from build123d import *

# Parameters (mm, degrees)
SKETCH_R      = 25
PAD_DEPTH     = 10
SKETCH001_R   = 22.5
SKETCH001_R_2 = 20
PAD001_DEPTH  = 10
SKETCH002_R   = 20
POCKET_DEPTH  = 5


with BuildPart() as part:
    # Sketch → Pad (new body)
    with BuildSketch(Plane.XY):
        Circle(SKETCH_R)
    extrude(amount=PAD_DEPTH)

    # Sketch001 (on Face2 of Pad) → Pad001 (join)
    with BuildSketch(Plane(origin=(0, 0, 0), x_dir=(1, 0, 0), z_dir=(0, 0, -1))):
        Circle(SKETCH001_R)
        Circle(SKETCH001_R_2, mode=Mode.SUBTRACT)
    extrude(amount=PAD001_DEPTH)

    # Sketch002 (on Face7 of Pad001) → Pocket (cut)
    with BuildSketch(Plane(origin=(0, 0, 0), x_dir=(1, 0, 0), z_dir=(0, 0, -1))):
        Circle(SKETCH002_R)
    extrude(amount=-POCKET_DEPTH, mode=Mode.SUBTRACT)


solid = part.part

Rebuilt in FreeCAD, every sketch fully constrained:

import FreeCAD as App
import Part
import Sketcher
Q = App.Units.Quantity

doc = App.newDocument("Part")
body = doc.addObject("PartDesign::Body", "Body")

# Sketch on XY plane
sketch1 = body.newObject("Sketcher::SketchObject", "Sketch")
sketch1.AttachmentSupport = (doc.getObject("XY_Plane"), [""])
sketch1.MapMode = "FlatFace"
sketch1.addGeometry(Part.Circle(App.Vector(0, 0, 0), App.Vector(0, 0, 1), 25), False)
sketch1.addConstraint(Sketcher.Constraint("Coincident", 0, 3, -1, 1))
sketch1.addConstraint(Sketcher.Constraint("Diameter", 0, Q("50 mm")))
pad1 = body.newObject("PartDesign::Pad", "Pad")
pad1.Profile = sketch1
pad1.Length = 10

# Sketch on XY plane
sketch2 = body.newObject("Sketcher::SketchObject", "Sketch001")
sketch2.AttachmentSupport = (doc.getObject("XY_Plane"), [""])
sketch2.MapMode = "FlatFace"
sketch2.addGeometry(Part.Circle(App.Vector(0, 0, 0), App.Vector(0, 0, 1), 22), False)
sketch2.addGeometry(Part.Circle(App.Vector(0, 0, 0), App.Vector(0, 0, 1), 20), False)
sketch2.addConstraint(Sketcher.Constraint("Coincident", 0, 3, -1, 1))
sketch2.addConstraint(Sketcher.Constraint("Coincident", 1, 3, -1, 1))
sketch2.addConstraint(Sketcher.Constraint("Diameter", 0, Q("45 mm")))
sketch2.addConstraint(Sketcher.Constraint("Diameter", 1, Q("40 mm")))
pad2 = body.newObject("PartDesign::Pad", "Pad001")
pad2.Profile = sketch2
pad2.Length = 10
pad2.Reversed = True

# Sketch on XY plane
sketch3 = body.newObject("Sketcher::SketchObject", "Sketch002")
sketch3.AttachmentSupport = (doc.getObject("XY_Plane"), [""])
sketch3.MapMode = "FlatFace"
sketch3.addGeometry(Part.Circle(App.Vector(0, 0, 0), App.Vector(0, 0, 1), 20), False)
sketch3.addConstraint(Sketcher.Constraint("Coincident", 0, 3, -1, 1))
sketch3.addConstraint(Sketcher.Constraint("Diameter", 0, Q("40 mm")))
pocket1 = body.newObject("PartDesign::Pocket", "Pocket")
pocket1.Profile = sketch3
pocket1.Length = 5
pocket1.Reversed = True

doc.recompute()
